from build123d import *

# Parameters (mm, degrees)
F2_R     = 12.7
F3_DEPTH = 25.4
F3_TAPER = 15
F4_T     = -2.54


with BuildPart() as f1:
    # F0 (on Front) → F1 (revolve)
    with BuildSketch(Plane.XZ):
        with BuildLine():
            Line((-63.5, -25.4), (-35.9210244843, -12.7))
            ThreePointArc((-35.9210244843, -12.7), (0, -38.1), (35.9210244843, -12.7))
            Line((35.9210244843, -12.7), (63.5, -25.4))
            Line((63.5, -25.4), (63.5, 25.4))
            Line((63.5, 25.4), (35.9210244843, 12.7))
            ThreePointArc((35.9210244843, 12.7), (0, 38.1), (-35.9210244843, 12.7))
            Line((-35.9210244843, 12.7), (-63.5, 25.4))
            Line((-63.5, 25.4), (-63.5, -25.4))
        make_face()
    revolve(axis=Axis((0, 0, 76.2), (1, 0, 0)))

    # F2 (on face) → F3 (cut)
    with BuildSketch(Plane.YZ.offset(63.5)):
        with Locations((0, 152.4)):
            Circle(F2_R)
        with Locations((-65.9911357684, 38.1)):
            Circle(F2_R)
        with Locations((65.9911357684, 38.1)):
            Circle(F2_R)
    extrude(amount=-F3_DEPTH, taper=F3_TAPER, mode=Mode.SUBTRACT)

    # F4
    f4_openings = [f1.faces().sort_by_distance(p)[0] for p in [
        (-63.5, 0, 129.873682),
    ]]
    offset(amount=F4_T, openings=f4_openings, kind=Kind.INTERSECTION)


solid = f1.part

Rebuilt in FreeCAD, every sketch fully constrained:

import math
import FreeCAD as App
import Part
import Sketcher
Q = App.Units.Quantity


def faces_at(feature, points):
    """Names of the faces that lie closest to the given points."""
    faces = feature.Shape.Faces
    near = lambda p: min(range(len(faces)), key=lambda i: faces[i].distToShape(Part.Vertex(*p))[0])
    return sorted({f"Face{near(p) + 1}" for p in points})

doc = App.newDocument("Part")
params = doc.addObject("Spreadsheet::Sheet", "Params")
for row, (alias, value) in enumerate([
    ("sketch1_radius", "1.5 in"),
    ("sketch1_width", "5 in"),
    ("sketch1_height", "2 in"),
    ("revolution_angle", "360 deg"),
    ("sketch2_diameter", "1 in"),
    ("pocket1_length", "1 in"),
    ("pocket1_taper", "-15 deg"),
    ("thickness_wall", "0.1 in"),
], start=1):
    params.set(f"A{row}", alias)
    params.set(f"B{row}", "=" + value)
    params.setAlias(f"B{row}", alias)

body = doc.addObject("PartDesign::Body", "Body")

# Sketch on XZ plane
sketch1 = body.newObject("Sketcher::SketchObject", "Sketch")
sketch1.AttachmentSupport = (doc.getObject("XZ_Plane"), [""])
sketch1.MapMode = "FlatFace"
sketch1.addGeometry([
    Part.LineSegment(App.Vector(-64, -25, 0), App.Vector(-36, -13, 0)),  # 0
    Part.ArcOfCircle(Part.Circle(App.Vector(0, 0, 0), App.Vector(0, 0, 1), 38), math.radians(-161), math.radians(-19)),  # 1
    Part.LineSegment(App.Vector(36, -13, 0), App.Vector(64, -25, 0)),  # 2
    Part.LineSegment(App.Vector(64, -25, 0), App.Vector(64, 25, 0)),  # 3
    Part.LineSegment(App.Vector(64, 25, 0), App.Vector(36, 13, 0)),  # 4
    Part.ArcOfCircle(Part.Circle(App.Vector(0, 0, 0), App.Vector(0, 0, 1), 38), math.radians(19), math.radians(161)),  # 5
    Part.LineSegment(App.Vector(-36, 13, 0), App.Vector(-64, 25, 0)),  # 6
    Part.LineSegment(App.Vector(-64, 25, 0), App.Vector(-64, -25, 0)),  # 7
], False)
sketch1.addGeometry(Part.LineSegment(App.Vector(-64, 76, 0), App.Vector(64, 76, 0)), True)  # axis
sketch1.addConstraint([
    Sketcher.Constraint("Coincident", 0, 2, 1, 1),
    Sketcher.Constraint("Coincident", 1, 2, 2, 1),
    Sketcher.Constraint("Coincident", 2, 2, 3, 1),
    Sketcher.Constraint("Coincident", 3, 2, 4, 1),
    Sketcher.Constraint("Coincident", 4, 2, 5, 1),
    Sketcher.Constraint("Coincident", 5, 2, 6, 1),
    Sketcher.Constraint("Coincident", 6, 2, 7, 1),
    Sketcher.Constraint("Coincident", 7, 2, 0, 1),
    Sketcher.Constraint("Vertical", 3),
    Sketcher.Constraint("Vertical", 7),
    Sketcher.Constraint("Horizontal", 8),
    Sketcher.Constraint("Coincident", 1, 3, -1, 1),
    Sketcher.Constraint("Coincident", 5, 3, -1, 1),
    Sketcher.Constraint("Equal", 1, 5),
    Sketcher.Constraint("Symmetric", 2, 2, 6, 2, -1, 1),
    Sketcher.Constraint("Parallel", 0, 4),
    Sketcher.Constraint("Parallel", 2, 6),
    Sketcher.Constraint("Horizontal", 0, 2, 1, 2),
    Sketcher.Constraint("Horizontal", 4, 2, 5, 2),
    Sketcher.Constraint("Horizontal", 3, 2, 6, 2),
    Sketcher.Constraint("Vertical", 7, 2, 8, 1),
    Sketcher.Constraint("Vertical", 3, 2, 8, 2),
    Sketcher.Constraint("Radius", 1, Q("1.5 in")),
    Sketcher.Constraint("DistanceX", 8, 1, 8, 2, Q("5 in")),
    Sketcher.Constraint("DistanceY", 3, 1, 3, 2, Q("2 in")),
    Sketcher.Constraint("DistanceY", -1, 1, 8, 1, Q("3 in")),
    Sketcher.Constraint("DistanceY", 1, 2, 4, 2, Q("1 in")),
])
sketch1.setExpression("Constraints[22]", "Params.sketch1_radius")
sketch1.setExpression("Constraints[23]", "Params.sketch1_width")
sketch1.setExpression("Constraints[24]", "Params.sketch1_height")
revolution = body.newObject("PartDesign::Revolution", "Revolution")
revolution.Profile = sketch1
revolution.ReferenceAxis = (sketch1, ["Axis0"])
revolution.setExpression("Angle", "Params.revolution_angle")

# Sketch on YZ plane
sketch2 = body.newObject("Sketcher::SketchObject", "Sketch001")
sketch2.AttachmentSupport = (doc.getObject("YZ_Plane"), [""])
sketch2.MapMode = "FlatFace"
sketch2.AttachmentOffset = App.Placement(App.Vector(0, 0, 2.5 * 25.4), App.Rotation())
sketch2.addGeometry([
    Part.Circle(App.Vector(0, 152, 0), App.Vector(0, 0, 1), 13),
    Part.Circle(App.Vector(-66, 38, 0), App.Vector(0, 0, 1), 13),
    Part.Circle(App.Vector(66, 38, 0), App.Vector(0, 0, 1), 13),
], False)
sketch2.addConstraint([
    Sketcher.Constraint("Equal", 0, 1),
    Sketcher.Constraint("Equal", 1, 2),
    Sketcher.Constraint("Symmetric", 1, 3, 2, 3, -2),
    Sketcher.Constraint("PointOnObject", 0, 3, -2),
    Sketcher.Constraint("Diameter", 0, Q("1 in")),
    Sketcher.Constraint("DistanceY", -1, 1, 0, 3, Q("6 in")),
    Sketcher.Constraint("DistanceY", -1, 1, 1, 3, Q("1.5 in")),
    Sketcher.Constraint("DistanceX", 1, 3, 2, 3, Q("131.982272 mm")),
])
sketch2.setExpression("Constraints[4]", "Params.sketch2_diameter")
pocket1 = body.newObject("PartDesign::Pocket", "Pocket")
pocket1.Profile = sketch2
pocket1.setExpression("Length", "Params.pocket1_length")
pocket1.setExpression("TaperAngle", "Params.pocket1_taper")
doc.recompute()

thickness = body.newObject("PartDesign::Thickness", "Thickness")
thickness.Base = (pocket1, faces_at(pocket1, [(-63.5, -40.64, 35.56)]))
thickness.setExpression("Value", "Params.thickness_wall")
thickness.Reversed = True
thickness.Join = "Intersection"

doc.recompute()
